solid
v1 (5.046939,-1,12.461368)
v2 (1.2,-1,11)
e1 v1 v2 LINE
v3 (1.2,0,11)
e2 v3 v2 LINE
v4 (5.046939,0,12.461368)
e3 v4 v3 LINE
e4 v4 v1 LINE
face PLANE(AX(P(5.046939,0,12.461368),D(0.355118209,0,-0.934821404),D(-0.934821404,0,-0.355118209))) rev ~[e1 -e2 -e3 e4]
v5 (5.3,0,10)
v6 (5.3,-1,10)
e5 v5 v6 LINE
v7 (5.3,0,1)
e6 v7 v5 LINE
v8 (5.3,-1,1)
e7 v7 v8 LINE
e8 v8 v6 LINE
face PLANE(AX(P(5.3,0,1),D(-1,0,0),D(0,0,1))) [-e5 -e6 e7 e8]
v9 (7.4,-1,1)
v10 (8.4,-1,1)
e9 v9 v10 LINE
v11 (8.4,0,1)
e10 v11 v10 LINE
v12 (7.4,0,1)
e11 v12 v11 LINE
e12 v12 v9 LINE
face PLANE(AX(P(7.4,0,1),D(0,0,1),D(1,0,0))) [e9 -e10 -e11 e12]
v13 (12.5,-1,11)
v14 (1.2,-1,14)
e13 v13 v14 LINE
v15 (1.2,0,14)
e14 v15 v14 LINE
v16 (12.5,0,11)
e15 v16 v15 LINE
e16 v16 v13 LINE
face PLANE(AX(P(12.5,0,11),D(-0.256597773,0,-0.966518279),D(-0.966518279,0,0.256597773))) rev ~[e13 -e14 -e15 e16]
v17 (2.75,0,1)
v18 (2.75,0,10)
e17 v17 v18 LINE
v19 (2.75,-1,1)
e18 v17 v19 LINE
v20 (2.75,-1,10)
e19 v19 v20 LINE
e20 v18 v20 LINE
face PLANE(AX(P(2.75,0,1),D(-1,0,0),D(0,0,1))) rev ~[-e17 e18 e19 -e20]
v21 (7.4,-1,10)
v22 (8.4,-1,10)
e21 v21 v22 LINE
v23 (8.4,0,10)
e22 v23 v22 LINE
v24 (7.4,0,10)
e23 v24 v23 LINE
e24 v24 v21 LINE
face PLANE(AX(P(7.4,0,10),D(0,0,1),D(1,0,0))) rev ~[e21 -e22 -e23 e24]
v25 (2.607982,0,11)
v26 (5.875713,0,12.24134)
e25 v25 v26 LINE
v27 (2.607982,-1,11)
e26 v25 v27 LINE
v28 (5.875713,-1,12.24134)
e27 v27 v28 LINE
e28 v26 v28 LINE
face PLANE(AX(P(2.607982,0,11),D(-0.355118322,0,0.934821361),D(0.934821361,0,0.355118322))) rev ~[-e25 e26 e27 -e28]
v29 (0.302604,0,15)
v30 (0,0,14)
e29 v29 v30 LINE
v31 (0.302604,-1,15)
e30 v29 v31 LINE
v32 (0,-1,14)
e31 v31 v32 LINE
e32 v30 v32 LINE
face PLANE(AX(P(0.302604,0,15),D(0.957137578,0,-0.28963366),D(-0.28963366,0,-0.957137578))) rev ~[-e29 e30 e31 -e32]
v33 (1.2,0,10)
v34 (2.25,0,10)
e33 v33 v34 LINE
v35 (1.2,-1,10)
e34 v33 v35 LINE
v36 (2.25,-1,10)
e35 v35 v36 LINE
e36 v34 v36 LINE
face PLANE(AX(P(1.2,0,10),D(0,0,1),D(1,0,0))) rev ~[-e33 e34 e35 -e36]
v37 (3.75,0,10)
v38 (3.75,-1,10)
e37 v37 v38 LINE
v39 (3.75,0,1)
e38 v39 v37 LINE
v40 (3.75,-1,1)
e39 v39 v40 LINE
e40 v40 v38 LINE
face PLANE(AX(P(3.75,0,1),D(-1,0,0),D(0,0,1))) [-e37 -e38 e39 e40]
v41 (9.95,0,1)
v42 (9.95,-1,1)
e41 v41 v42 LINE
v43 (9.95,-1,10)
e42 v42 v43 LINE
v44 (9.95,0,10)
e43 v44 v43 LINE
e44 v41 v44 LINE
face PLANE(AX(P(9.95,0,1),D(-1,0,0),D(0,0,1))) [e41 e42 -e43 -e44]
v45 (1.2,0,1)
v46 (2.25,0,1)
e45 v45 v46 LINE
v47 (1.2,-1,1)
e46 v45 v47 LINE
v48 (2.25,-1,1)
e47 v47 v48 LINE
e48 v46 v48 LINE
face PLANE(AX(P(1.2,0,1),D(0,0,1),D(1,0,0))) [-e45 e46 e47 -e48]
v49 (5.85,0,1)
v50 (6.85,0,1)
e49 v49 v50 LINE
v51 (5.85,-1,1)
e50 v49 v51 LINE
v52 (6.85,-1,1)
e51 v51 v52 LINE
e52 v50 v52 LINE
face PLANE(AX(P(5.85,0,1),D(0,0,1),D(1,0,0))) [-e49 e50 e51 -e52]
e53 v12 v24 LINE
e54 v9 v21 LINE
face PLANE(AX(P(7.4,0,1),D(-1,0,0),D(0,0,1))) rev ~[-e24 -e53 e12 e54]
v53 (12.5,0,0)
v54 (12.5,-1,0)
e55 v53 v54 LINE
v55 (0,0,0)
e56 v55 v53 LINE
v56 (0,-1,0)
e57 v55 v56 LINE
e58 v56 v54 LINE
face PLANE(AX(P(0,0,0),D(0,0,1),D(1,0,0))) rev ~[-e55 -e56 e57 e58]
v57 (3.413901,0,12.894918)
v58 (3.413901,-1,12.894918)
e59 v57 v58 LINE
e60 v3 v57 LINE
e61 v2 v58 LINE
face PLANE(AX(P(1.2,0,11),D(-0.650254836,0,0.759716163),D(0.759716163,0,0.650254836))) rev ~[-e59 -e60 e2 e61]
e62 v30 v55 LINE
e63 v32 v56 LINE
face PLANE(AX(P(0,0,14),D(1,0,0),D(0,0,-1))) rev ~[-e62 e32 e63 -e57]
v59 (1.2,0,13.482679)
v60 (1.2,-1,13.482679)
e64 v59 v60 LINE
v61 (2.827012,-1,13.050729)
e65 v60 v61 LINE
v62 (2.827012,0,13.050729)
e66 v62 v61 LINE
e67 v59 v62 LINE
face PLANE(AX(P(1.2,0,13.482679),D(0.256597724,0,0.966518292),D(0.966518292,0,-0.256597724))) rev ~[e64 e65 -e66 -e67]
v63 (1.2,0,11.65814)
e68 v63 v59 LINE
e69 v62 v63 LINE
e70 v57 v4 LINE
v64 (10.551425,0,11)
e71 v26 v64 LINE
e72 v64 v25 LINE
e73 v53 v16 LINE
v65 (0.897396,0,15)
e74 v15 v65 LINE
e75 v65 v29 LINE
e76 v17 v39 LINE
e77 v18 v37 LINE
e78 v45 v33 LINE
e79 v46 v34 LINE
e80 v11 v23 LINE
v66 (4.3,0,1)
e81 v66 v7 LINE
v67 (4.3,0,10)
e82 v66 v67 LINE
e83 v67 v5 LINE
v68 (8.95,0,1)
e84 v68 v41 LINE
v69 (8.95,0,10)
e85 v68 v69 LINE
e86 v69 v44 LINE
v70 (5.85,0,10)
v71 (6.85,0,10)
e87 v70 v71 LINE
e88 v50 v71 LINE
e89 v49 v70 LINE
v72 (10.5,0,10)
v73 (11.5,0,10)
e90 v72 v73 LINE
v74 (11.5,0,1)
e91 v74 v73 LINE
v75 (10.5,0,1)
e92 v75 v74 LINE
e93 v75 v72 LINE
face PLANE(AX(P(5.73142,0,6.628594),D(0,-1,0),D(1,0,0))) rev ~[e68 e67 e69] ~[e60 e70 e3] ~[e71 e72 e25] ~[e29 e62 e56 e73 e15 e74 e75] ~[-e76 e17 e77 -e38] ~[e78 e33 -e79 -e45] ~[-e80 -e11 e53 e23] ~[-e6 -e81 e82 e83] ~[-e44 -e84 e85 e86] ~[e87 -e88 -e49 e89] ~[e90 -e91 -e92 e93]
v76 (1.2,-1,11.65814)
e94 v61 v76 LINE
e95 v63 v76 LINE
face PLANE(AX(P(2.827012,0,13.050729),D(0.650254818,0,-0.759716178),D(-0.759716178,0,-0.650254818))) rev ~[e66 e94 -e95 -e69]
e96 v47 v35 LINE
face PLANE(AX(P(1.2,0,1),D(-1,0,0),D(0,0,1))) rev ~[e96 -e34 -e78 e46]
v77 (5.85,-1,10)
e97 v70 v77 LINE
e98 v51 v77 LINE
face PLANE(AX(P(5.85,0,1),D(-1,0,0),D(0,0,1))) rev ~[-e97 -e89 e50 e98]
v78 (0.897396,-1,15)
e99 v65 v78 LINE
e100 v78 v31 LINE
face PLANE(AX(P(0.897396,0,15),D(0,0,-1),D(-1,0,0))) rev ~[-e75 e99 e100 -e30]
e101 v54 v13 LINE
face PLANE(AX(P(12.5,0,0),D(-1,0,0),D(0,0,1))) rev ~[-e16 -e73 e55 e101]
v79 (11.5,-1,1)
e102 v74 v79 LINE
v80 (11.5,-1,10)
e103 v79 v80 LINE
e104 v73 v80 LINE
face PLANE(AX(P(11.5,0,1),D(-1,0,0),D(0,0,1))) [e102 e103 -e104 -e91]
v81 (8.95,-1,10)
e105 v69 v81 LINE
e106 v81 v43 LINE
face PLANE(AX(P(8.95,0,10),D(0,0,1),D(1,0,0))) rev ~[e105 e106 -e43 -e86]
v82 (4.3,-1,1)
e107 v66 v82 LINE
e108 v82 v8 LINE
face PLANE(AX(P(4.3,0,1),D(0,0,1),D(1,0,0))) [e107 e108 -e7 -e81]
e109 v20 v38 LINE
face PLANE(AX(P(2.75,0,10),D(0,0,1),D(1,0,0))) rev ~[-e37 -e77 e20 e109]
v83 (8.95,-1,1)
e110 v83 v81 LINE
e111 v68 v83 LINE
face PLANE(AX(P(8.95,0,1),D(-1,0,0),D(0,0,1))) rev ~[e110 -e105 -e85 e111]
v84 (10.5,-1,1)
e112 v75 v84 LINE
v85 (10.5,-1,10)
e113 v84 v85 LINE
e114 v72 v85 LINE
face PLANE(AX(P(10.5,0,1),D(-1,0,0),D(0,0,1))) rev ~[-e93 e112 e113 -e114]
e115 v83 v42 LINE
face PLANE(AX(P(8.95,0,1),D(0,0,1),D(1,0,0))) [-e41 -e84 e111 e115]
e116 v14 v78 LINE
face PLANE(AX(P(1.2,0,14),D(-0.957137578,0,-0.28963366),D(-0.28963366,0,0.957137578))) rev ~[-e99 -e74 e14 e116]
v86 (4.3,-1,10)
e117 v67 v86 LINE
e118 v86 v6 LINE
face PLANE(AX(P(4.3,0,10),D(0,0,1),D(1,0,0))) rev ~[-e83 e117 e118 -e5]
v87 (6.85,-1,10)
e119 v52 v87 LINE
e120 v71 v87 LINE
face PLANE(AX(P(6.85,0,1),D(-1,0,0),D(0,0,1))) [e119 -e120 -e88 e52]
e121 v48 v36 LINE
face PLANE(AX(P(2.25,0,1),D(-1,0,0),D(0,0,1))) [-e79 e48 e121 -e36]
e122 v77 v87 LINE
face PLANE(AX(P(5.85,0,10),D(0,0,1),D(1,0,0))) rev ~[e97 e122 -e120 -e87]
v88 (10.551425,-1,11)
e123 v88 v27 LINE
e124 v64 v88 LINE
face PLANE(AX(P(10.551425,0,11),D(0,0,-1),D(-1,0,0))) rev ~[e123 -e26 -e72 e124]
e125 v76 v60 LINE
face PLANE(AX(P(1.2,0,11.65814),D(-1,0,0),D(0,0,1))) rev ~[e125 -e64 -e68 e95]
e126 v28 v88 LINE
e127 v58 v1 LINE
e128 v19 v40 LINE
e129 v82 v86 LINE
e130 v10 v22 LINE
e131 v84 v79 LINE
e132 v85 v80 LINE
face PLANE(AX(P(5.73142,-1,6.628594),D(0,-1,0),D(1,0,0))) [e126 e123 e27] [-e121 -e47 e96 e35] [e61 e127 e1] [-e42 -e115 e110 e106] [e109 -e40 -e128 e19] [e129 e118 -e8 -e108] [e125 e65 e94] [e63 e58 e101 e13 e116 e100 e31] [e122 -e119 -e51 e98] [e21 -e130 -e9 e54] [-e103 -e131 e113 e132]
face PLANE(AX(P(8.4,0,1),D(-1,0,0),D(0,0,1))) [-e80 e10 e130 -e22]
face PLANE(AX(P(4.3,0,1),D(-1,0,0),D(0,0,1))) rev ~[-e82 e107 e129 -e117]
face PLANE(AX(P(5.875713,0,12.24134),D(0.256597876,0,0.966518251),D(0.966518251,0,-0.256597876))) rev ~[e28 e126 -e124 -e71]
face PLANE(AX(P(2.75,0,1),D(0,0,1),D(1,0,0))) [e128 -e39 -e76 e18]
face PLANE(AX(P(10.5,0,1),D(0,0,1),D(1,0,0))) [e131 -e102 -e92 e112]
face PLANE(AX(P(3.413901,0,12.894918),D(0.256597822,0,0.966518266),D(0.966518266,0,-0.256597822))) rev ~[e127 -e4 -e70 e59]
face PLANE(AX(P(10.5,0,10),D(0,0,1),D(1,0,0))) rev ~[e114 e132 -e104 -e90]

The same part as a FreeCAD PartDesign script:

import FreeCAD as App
import Part
import Sketcher
from FreeCAD import Vector
Q = App.Units.Quantity


def add_polygon(sketch, points):
    """Adds a closed chain of lines whose ends are joined by coincident constraints."""
    first, n = sketch.GeometryCount, len(points)
    for a, b in zip(points, points[1:] + points[:1]):
        sketch.addGeometry(Part.LineSegment(App.Vector(*a, 0), App.Vector(*b, 0)), False)
    for i in range(n):
        sketch.addConstraint(Sketcher.Constraint("Coincident", first + i, 2, first + (i + 1) % n, 1))

doc = App.newDocument("Part")
body = doc.addObject("PartDesign::Body", "Body")

# Sketch on XZ plane
sketch1 = body.newObject("Sketcher::SketchObject", "Sketch")
sketch1.AttachmentSupport = (doc.getObject("XZ_Plane"), [""])
sketch1.MapMode = "FlatFace"
add_polygon(sketch1, [(0, 14), (0, 0), (12.5, 0), (12.5, 11), (1.2, 14), (0.9, 15), (0.3, 15)])  # lines 0-6
add_polygon(sketch1, [(2.2, 1), (1.2, 1), (1.2, 10), (2.2, 10)])  # lines 7-10
add_polygon(sketch1, [(3.8, 1), (2.8, 1), (2.8, 10), (3.8, 10)])  # lines 11-14
add_polygon(sketch1, [(5.3, 1), (4.3, 1), (4.3, 10), (5.3, 10)])  # lines 15-18
add_polygon(sketch1, [(6.8, 1), (5.8, 1), (5.8, 10), (6.8, 10)])  # lines 19-22
add_polygon(sketch1, [(8.4, 1), (7.4, 1), (7.4, 10), (8.4, 10)])  # lines 23-26
add_polygon(sketch1, [(9.9, 1), (8.9, 1), (8.9, 10), (9.9, 10)])  # lines 27-30
add_polygon(sketch1, [(11.5, 1), (10.5, 1), (10.5, 10), (11.5, 10)])  # lines 31-34
add_polygon(sketch1, [(2.8, 13.1), (1.2, 11.7), (1.2, 13.5)])  # lines 35-37
add_polygon(sketch1, [(3.4, 12.9), (5, 12.5), (1.2, 11)])  # lines 38-40
add_polygon(sketch1, [(2.6, 11), (5.9, 12.2), (10.6, 11)])  # lines 41-43
sketch1.addConstraint([
    Sketcher.Constraint("Vertical", 0),
    Sketcher.Constraint("Horizontal", 1),
    Sketcher.Constraint("Vertical", 2),
    Sketcher.Constraint("Horizontal", 5),
    Sketcher.Constraint("Horizontal", 7),
    Sketcher.Constraint("Vertical", 8),
    Sketcher.Constraint("Horizontal", 9),
    Sketcher.Constraint("Vertical", 10),
    Sketcher.Constraint("Horizontal", 11),
    Sketcher.Constraint("Vertical", 12),
    Sketcher.Constraint("Horizontal", 13),
    Sketcher.Constraint("Vertical", 14),
    Sketcher.Constraint("Horizontal", 15),
    Sketcher.Constraint("Vertical", 16),
    Sketcher.Constraint("Horizontal", 17),
    Sketcher.Constraint("Vertical", 18),
    Sketcher.Constraint("Horizontal", 19),
    Sketcher.Constraint("Vertical", 20),
    Sketcher.Constraint("Horizontal", 21),
    Sketcher.Constraint("Vertical", 22),
    Sketcher.Constraint("Horizontal", 23),
    Sketcher.Constraint("Vertical", 24),
    Sketcher.Constraint("Horizontal", 25),
    Sketcher.Constraint("Vertical", 26),
    Sketcher.Constraint("Horizontal", 27),
    Sketcher.Constraint("Vertical", 28),
    Sketcher.Constraint("Horizontal", 29),
    Sketcher.Constraint("Vertical", 30),
    Sketcher.Constraint("Horizontal", 31),
    Sketcher.Constraint("Vertical", 32),
    Sketcher.Constraint("Horizontal", 33),
    Sketcher.Constraint("Vertical", 34),
    Sketcher.Constraint("Vertical", 36),
    Sketcher.Constraint("Horizontal", 43),
    Sketcher.Constraint("Coincident", 0, 2, -1, 1),
    Sketcher.Constraint("Parallel", 3, 37),
    Sketcher.Constraint("Parallel", 37, 38),
    Sketcher.Constraint("Parallel", 35, 40),
    Sketcher.Constraint("Parallel", 39, 41),
    Sketcher.Constraint("Parallel", 38, 42),
    Sketcher.Constraint("Horizontal", 3, 2, 6, 2),
    Sketcher.Constraint("Horizontal", 10, 2, 11, 2),
    Sketcher.Constraint("Horizontal", 9, 2, 12, 2),
    Sketcher.Constraint("Horizontal", 14, 2, 15, 2),
    Sketcher.Constraint("Horizontal", 13, 2, 16, 2),
    Sketcher.Constraint("Horizontal", 18, 2, 19, 2),
    Sketcher.Constraint("Horizontal", 17, 2, 20, 2),
    Sketcher.Constraint("Horizontal", 22, 2, 23, 2),
    Sketcher.Constraint("Horizontal", 21, 2, 24, 2),
    Sketcher.Constraint("Horizontal", 26, 2, 27, 2),
    Sketcher.Constraint("Horizontal", 25, 2, 28, 2),
    Sketcher.Constraint("Horizontal", 30, 2, 31, 2),
    Sketcher.Constraint("Horizontal", 29, 2, 32, 2),
    Sketcher.Constraint("Horizontal", 2, 2, 39, 2),
    Sketcher.Constraint("Horizontal", 39, 2, 42, 2),
    Sketcher.Constraint("Vertical", 3, 2, 7, 2),
    Sketcher.Constraint("Vertical", 8, 2, 35, 2),
    Sketcher.Constraint("Vertical", 36, 2, 39, 2),
    Sketcher.Constraint("Equal", 13, 15),
    Sketcher.Constraint("Equal", 17, 19),
    Sketcher.Constraint("Equal", 21, 23),
    Sketcher.Constraint("Equal", 25, 27),
    Sketcher.Constraint("Equal", 29, 31),
    Sketcher.Constraint("Equal", 4, 6),
    Sketcher.Constraint("DistanceX", 11, 2, 11, 1, Q("1 mm")),
    Sketcher.Constraint("DistanceY", 0, 2, 0, 1, Q("14 mm")),
    Sketcher.Constraint("DistanceY", 2, 1, 2, 2, Q("11 mm")),
    Sketcher.Constraint("DistanceY", 8, 1, 8, 2, Q("9 mm")),
    Sketcher.Constraint("DistanceX", 1, 1, 1, 2, Q("12.5 mm")),
    Sketcher.Constraint("DistanceY", -1, 1, 4, 2, Q("15 mm")),
    Sketcher.Constraint("DistanceY", -1, 1, 7, 2, Q("1 mm")),
    Sketcher.Constraint("DistanceX", 31, 2, 1, 2, Q("2 mm")),
    Sketcher.Constraint("DistanceX", 7, 2, 7, 1, Q("1.05 mm")),
    Sketcher.Constraint("DistanceX", -1, 1, 3, 2, Q("1.2 mm")),
    Sketcher.Constraint("DistanceX", -1, 1, 15, 2, Q("4.3 mm")),
    Sketcher.Constraint("DistanceX", -1, 1, 23, 2, Q("7.4 mm")),
    Sketcher.Constraint("DistanceX", 10, 2, 11, 2, Q("0.5 mm")),
    Sketcher.Constraint("DistanceX", 14, 2, 19, 2, Q("2.1 mm")),
    Sketcher.Constraint("DistanceX", 22, 2, 27, 2, Q("2.1 mm")),
    Sketcher.Constraint("DistanceX", 5, 2, 5, 1, Q("0.594792 mm")),
    Sketcher.Constraint("DistanceY", 36, 1, 36, 2, Q("1.824539 mm")),
    Sketcher.Constraint("DistanceX", -1, 1, 40, 2, Q("3.413901 mm")),
    Sketcher.Constraint("Distance", 38, Q("1.689609 mm")),
    Sketcher.Constraint("Distance", 39, Q("4.115159 mm")),
    Sketcher.Constraint("DistanceX", 43, 2, 43, 1, Q("7.943443 mm")),
    Sketcher.Constraint("DistanceY", -1, 1, 35, 2, Q("11.65814 mm")),
    Sketcher.Constraint("DistanceX", -1, 1, 43, 2, Q("2.607982 mm")),
])
pad1 = body.newObject("PartDesign::Pad", "Pad")
pad1.Profile = sketch1
pad1.Length = 1

doc.recompute()
